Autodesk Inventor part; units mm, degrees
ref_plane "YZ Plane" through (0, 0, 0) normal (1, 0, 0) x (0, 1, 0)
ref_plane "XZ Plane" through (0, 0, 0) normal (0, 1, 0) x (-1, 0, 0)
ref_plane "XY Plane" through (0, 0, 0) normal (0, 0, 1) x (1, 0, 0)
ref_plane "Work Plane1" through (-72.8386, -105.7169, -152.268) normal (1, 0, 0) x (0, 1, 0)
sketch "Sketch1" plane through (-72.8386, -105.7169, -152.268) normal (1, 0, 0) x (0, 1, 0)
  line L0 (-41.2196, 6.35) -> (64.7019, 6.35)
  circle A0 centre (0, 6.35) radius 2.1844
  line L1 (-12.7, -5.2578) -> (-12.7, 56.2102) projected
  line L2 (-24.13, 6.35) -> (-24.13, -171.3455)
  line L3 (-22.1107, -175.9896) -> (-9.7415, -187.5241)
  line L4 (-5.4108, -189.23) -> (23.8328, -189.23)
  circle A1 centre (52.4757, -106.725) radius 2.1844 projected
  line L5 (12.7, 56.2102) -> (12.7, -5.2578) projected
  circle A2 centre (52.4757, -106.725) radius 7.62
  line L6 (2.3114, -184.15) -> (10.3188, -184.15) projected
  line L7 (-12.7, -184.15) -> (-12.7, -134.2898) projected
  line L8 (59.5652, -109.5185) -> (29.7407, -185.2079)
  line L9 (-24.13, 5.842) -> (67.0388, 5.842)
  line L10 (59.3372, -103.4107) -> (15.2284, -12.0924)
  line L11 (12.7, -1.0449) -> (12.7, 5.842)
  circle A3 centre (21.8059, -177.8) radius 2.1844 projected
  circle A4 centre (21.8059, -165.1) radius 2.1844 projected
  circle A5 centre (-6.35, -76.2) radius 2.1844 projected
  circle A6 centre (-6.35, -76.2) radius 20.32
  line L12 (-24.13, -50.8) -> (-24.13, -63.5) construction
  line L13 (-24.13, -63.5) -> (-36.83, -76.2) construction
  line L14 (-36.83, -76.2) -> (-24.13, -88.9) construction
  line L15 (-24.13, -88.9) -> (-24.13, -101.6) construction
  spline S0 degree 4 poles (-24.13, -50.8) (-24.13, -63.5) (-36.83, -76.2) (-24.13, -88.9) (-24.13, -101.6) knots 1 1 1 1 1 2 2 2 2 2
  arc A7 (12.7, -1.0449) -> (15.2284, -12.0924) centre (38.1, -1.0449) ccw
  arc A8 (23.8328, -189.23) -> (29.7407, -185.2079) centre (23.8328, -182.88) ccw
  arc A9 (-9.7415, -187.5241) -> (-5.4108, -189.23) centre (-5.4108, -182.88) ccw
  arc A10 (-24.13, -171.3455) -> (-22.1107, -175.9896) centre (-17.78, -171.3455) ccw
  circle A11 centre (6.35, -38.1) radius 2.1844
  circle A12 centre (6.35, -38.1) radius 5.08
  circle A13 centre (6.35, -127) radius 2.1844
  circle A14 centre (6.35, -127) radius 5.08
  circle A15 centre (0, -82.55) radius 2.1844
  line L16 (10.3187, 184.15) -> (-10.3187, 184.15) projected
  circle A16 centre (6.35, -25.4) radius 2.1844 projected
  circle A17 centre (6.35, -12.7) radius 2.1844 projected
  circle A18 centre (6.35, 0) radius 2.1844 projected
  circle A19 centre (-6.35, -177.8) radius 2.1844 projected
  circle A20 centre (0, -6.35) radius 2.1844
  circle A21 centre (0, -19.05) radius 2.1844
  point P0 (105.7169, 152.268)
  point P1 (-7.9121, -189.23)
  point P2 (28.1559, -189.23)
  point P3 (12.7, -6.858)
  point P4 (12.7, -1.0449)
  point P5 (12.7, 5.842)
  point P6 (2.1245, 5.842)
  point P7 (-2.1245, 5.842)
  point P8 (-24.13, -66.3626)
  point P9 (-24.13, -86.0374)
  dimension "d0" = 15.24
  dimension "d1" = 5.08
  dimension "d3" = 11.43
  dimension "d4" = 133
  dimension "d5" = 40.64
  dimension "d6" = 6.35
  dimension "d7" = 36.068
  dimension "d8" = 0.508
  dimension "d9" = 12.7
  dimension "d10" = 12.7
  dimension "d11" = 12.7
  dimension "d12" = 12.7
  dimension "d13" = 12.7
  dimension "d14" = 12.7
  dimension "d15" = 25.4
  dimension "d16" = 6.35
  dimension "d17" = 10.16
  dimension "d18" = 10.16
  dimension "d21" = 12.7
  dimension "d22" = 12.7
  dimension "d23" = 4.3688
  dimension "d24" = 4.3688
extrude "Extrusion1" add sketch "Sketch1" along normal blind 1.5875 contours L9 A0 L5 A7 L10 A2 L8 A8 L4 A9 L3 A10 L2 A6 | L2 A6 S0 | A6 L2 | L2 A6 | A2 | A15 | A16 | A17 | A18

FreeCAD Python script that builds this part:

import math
import FreeCAD as App
import Part
import Sketcher
from FreeCAD import Vector
Q = App.Units.Quantity

doc = App.newDocument("Part")
body = doc.addObject("PartDesign::Body", "Body")

# Sketch on YZ plane
sketch1 = doc.addObject("Sketcher::SketchObject", "Sketch")
body.addObject(sketch1)
sketch1.AttachmentSupport = (doc.YZ_Plane, [""])
sketch1.MapMode = "FlatFace"
sketch1.AttachmentOffset = App.Placement(Vector(0, 0, -72.8386), App.Rotation())
sketch1.addGeometry([
    Part.LineSegment(Vector(-129.8469, -146.426, 0), Vector(-129.8469, -203.068, 0)),  # 0
    Part.BSplineCurve([Vector(-129.8469, -203.068, 0), Vector(-129.8469, -215.768, 0), Vector(-142.5469, -228.468, 0), Vector(-129.8469, -241.168, 0), Vector(-129.8469, -253.868, 0)], [5, 5], [1, 2], False, 4, [1, 1, 1, 1, 1], False),  # 1
    Part.LineSegment(Vector(-129.8469, -253.868, 0), Vector(-129.8469, -323.6135, 0)),  # 2
    Part.ArcOfCircle(Part.Circle(Vector(-123.4969, -323.6135, 0), Vector(0, 0, 1), 6.35), math.radians(180), math.radians(226.999956)),  # 3
    Part.LineSegment(Vector(-127.8276, -328.2576, 0), Vector(-115.4584, -339.7921, 0)),  # 4
    Part.ArcOfCircle(Part.Circle(Vector(-111.1277, -335.148, 0), Vector(0, 0, 1), 6.35001), math.radians(-133.000044), math.radians(-90)),  # 5
    Part.LineSegment(Vector(-111.1277, -341.498, 0), Vector(-81.8841, -341.498, 0)),  # 6
    Part.ArcOfCircle(Part.Circle(Vector(-81.8841, -335.148, 0), Vector(0, 0, 1), 6.35), math.radians(-90), math.radians(-21.506013)),  # 7
    Part.LineSegment(Vector(-75.9762, -337.4759, 0), Vector(-46.1517, -261.7865, 0)),  # 8
    Part.ArcOfCircle(Part.Circle(Vector(-53.2412, -258.993, 0), Vector(0, 0, 1), 7.62), math.radians(-21.506098), math.radians(25.781866)),  # 9
    Part.LineSegment(Vector(-46.3797, -255.6787, 0), Vector(-90.4885, -164.3604, 0)),  # 10
    Part.ArcOfCircle(Part.Circle(Vector(-67.617938, -153.313017, 0), Vector(0, 0, 1), 25.398962), math.radians(179.999736), math.radians(205.782373)),  # 11
    Part.LineSegment(Vector(-93.0169, -153.3129, 0), Vector(-93.0169, -146.426, 0)),  # 12
    Part.LineSegment(Vector(-93.0169, -146.426, 0), Vector(-103.592391, -146.426, 0)),  # 13
    Part.ArcOfCircle(Part.Circle(Vector(-105.7169, -145.918, 0), Vector(0, 0, 1), 2.1844), math.radians(-166.552273), math.radians(-13.447727)),  # 14
    Part.LineSegment(Vector(-107.841409, -146.426, 0), Vector(-129.8469, -146.426, 0)),  # 15
    Part.Circle(Vector(-112.0669, -330.068, 0), Vector(0, 0, 1), 2.1844),  # 16
    Part.Circle(Vector(-99.3669, -279.268, 0), Vector(0, 0, 1), 5.08),  # 17
    Part.Circle(Vector(-83.911, -330.068, 0), Vector(0, 0, 1), 2.1844),  # 18
    Part.Circle(Vector(-83.911, -317.368, 0), Vector(0, 0, 1), 2.1844),  # 19
    Part.Circle(Vector(-99.3669, -190.368, 0), Vector(0, 0, 1), 5.08),  # 20
    Part.Circle(Vector(-105.7169, -171.318, 0), Vector(0, 0, 1), 2.1844),  # 21
    Part.Circle(Vector(-105.7169, -158.618, 0), Vector(0, 0, 1), 2.1844),  # 22
    Part.Circle(Vector(-53.2412, -258.993, 0), Vector(0, 0, 1), 2.1844),  # 23
    Part.Circle(Vector(-112.0669, -228.468, 0), Vector(0, 0, 1), 2.1844),  # 24
], False)
sketch1.addConstraint([
    Sketcher.Constraint("Block", 1),
    Sketcher.Constraint("Coincident", 0, 2, 1, 1),
    Sketcher.Constraint("Coincident", 1, 2, 2, 1),
    Sketcher.Constraint("Tangent", 2, 2, 3, 1),
    Sketcher.Constraint("Tangent", 3, 2, 4, 1),
    Sketcher.Constraint("Tangent", 4, 2, 5, 1),
    Sketcher.Constraint("Tangent", 5, 2, 6, 1),
    Sketcher.Constraint("Tangent", 6, 2, 7, 1),
    Sketcher.Constraint("Tangent", 7, 2, 8, 1),
    Sketcher.Constraint("Tangent", 8, 2, 9, 1),
    Sketcher.Constraint("Tangent", 9, 2, 10, 1),
    Sketcher.Constraint("Tangent", 10, 2, 11, 2),
    Sketcher.Constraint("Tangent", 11, 1, 12, 1),
    Sketcher.Constraint("Coincident", 12, 2, 13, 1),
    Sketcher.Constraint("Coincident", 13, 2, 14, 2),
    Sketcher.Constraint("Coincident", 14, 1, 15, 1),
    Sketcher.Constraint("Coincident", 15, 2, 0, 1),
    Sketcher.Constraint("Vertical", 0),
    Sketcher.Constraint("Vertical", 2),
    Sketcher.Constraint("Horizontal", 6),
    Sketcher.Constraint("Vertical", 12),
    Sketcher.Constraint("Horizontal", 13),
    Sketcher.Constraint("Horizontal", 15),
    Sketcher.Constraint("Coincident", 23, 3, 9, 3),
    Sketcher.Constraint("Equal", 3, 5),
    Sketcher.Constraint("Equal", 5, 7),
    Sketcher.Constraint("Equal", 14, 16),
    Sketcher.Constraint("Equal", 16, 18),
    Sketcher.Constraint("Equal", 18, 19),
    Sketcher.Constraint("Equal", 17, 20),
    Sketcher.Constraint("Equal", 19, 21),
    Sketcher.Constraint("Equal", 21, 22),
    Sketcher.Constraint("Equal", 22, 23),
    Sketcher.Constraint("Equal", 23, 24),
    Sketcher.Constraint("Horizontal", 16, 3, 18, 3),
    Sketcher.Constraint("Horizontal", 13, 2, 14, 1),
    Sketcher.Constraint("Vertical", 18, 3, 19, 3),
    Sketcher.Constraint("Vertical", 17, 3, 20, 3),
    Sketcher.Constraint("Vertical", 14, 3, 21, 3),
    Sketcher.Constraint("Vertical", 21, 3, 22, 3),
    Sketcher.Constraint("Vertical", 16, 3, 24, 3),
    Sketcher.Constraint("Diameter", 17, Q("0.4 in")),
    Sketcher.Constraint("Radius", 9, Q("0.3 in")),
    Sketcher.Constraint("Radius", 3, Q("0.25 in")),
    Sketcher.Constraint("Diameter", 16, Q("0.172 in")),
    Sketcher.Constraint("DistanceY", 21, 3, 14, 3, Q("1 in")),
    Sketcher.Constraint("DistanceY", 24, 3, 0, 2, Q("1 in")),
    Sketcher.Constraint("DistanceY", 5, 3, 16, 3, Q("0.2 in")),
    Sketcher.Constraint("DistanceX", 16, 3, 17, 3, Q("0.5 in")),
    Sketcher.Constraint("DistanceY", 18, 3, 19, 3, Q("0.5 in")),
    Sketcher.Constraint("DistanceY", 22, 3, 14, 3, Q("0.5 in")),
    Sketcher.Constraint("DistanceY", 0, 2, 20, 3, Q("0.5 in")),
    Sketcher.Constraint("DistanceX", 22, 3, 11, 1, Q("0.5 in")),
    Sketcher.Constraint("DistanceX", 3, 3, 16, 3, Q("0.45 in")),
    Sketcher.Constraint("DistanceX", 14, 3, 20, 3, Q("0.25 in")),
    Sketcher.Constraint("DistanceY", 12, 2, 14, 3, Q("0.02 in")),
    Sketcher.Constraint("Angle", 4, Q("-43 deg")),
    Sketcher.Constraint("DistanceY", 16, 3, 17, 3, Q("2 in")),
    Sketcher.Constraint("DistanceY", 19, 3, 20, 3, Q("5 in")),
    Sketcher.Constraint("DistanceY", 0, 2, 0, 1, Q("2.23 in")),
    Sketcher.Constraint("Radius", 11, Q("25.399 mm")),
    Sketcher.Constraint("DistanceX", 8, 2, -1, 1, Q("1.817 in")),
    Sketcher.Constraint("DistanceX", 5, 3, 9, 3, Q("2.279 in")),
    Sketcher.Constraint("DistanceX", 3, 2, 18, 3, Q("1.729 in")),
    Sketcher.Constraint("Distance", 8, Q("3.2029 in")),
    Sketcher.Constraint("DistanceX", 6, 1, 6, 2, Q("29.2436 mm")),
    Sketcher.Constraint("DistanceY", 12, 1, 12, 2, Q("6.887 mm")),
])
pad1 = doc.addObject("PartDesign::Pad", "Pad")
body.addObject(pad1)
pad1.Profile = sketch1
pad1.Length = Q("0.0625 in")

doc.recompute()
